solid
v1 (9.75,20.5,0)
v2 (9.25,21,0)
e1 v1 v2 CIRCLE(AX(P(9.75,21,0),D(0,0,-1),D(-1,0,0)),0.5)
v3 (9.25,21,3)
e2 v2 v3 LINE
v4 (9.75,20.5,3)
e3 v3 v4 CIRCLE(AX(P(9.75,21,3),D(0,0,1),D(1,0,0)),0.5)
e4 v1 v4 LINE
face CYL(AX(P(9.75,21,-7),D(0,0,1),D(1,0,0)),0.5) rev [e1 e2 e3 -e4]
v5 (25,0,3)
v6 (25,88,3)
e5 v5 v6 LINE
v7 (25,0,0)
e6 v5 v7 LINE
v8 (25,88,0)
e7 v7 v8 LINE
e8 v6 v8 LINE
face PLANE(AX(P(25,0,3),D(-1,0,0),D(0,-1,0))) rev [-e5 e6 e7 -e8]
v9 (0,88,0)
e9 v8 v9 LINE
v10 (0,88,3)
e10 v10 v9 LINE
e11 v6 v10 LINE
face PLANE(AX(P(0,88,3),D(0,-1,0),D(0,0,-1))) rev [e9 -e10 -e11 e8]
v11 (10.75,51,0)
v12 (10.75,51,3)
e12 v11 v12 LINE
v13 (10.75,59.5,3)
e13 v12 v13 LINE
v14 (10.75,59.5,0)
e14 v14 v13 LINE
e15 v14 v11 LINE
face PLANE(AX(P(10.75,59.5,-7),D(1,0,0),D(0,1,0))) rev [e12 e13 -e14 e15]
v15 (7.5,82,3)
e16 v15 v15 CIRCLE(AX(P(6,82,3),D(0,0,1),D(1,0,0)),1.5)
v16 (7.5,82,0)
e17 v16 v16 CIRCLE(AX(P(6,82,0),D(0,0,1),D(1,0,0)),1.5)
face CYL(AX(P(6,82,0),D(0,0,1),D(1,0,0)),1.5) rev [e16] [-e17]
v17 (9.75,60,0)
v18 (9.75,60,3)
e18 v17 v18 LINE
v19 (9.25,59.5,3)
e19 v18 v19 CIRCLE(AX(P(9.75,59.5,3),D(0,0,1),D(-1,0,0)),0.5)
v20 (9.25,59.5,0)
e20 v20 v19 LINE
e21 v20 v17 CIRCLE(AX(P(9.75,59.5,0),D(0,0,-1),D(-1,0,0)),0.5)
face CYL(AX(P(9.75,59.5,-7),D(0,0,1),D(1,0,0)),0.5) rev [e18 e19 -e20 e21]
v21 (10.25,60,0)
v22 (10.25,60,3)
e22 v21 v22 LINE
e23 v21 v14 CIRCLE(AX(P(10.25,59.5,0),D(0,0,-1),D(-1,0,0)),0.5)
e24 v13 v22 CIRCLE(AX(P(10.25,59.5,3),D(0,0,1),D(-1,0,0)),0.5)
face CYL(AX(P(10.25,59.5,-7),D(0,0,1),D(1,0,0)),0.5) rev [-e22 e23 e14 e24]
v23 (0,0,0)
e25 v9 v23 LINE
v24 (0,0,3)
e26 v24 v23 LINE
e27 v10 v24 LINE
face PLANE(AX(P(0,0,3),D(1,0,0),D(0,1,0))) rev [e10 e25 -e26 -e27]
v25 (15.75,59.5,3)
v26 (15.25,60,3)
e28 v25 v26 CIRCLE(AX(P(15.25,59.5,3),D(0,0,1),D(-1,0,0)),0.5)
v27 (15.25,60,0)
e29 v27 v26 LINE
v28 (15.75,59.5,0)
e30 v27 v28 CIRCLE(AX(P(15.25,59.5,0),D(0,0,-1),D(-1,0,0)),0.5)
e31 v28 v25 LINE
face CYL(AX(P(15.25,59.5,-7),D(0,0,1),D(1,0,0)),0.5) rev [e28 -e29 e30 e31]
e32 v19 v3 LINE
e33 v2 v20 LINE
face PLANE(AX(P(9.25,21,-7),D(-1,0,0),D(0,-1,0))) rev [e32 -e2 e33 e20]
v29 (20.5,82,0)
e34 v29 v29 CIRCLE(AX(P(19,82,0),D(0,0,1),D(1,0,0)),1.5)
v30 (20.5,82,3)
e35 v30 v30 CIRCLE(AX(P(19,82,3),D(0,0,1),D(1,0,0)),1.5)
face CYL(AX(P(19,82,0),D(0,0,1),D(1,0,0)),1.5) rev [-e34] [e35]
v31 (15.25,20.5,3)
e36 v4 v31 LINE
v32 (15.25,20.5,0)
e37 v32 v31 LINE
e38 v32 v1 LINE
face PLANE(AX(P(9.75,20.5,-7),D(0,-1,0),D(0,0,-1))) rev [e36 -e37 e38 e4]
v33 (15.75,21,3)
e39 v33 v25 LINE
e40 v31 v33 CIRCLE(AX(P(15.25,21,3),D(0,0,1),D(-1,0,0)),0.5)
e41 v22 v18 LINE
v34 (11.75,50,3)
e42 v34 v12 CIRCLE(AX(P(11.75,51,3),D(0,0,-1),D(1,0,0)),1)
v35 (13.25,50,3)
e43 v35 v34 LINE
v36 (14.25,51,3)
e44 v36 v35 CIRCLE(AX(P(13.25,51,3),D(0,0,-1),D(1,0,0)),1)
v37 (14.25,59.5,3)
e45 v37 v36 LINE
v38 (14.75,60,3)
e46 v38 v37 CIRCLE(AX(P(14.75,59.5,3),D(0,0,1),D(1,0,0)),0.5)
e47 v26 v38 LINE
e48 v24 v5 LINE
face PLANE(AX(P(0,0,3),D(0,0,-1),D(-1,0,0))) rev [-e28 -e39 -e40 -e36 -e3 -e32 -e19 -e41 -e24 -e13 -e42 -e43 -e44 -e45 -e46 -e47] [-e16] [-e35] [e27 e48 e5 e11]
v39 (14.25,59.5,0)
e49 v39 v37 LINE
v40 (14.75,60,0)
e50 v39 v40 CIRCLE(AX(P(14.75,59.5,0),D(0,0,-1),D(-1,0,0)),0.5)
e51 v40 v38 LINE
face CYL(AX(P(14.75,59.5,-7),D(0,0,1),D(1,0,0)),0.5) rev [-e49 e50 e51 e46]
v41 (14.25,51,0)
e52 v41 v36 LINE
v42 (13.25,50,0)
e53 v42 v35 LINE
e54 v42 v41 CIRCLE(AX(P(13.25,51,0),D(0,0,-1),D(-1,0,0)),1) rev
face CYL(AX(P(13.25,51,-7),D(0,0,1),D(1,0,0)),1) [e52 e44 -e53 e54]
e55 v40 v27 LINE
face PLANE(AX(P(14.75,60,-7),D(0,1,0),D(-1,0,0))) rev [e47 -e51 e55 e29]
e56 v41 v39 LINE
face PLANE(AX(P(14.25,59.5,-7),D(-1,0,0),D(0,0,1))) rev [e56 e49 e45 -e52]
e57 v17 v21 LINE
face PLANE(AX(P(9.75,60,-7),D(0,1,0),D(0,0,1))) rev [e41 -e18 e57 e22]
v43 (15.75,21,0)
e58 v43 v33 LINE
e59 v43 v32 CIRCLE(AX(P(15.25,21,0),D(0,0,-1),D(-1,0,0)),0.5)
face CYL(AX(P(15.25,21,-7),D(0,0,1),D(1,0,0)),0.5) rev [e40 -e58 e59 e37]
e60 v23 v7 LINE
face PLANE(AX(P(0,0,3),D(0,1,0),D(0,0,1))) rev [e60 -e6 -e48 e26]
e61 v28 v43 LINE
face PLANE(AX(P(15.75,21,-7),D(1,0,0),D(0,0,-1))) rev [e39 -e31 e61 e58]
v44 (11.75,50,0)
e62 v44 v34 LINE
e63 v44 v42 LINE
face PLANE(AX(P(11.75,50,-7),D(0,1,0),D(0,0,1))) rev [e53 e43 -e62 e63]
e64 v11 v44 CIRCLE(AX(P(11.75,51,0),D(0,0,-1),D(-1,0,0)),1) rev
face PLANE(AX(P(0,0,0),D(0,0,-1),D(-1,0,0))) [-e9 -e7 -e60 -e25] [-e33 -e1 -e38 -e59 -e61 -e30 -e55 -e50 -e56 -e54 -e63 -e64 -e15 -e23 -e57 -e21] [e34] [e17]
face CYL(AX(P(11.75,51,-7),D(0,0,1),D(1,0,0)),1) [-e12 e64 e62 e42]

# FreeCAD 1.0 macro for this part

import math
import FreeCAD as App
import Part
import Sketcher

V = App.Vector


def add_polygon(sketch, points):
    """Adds a closed chain of lines whose ends are joined by coincident constraints."""
    first, n = sketch.GeometryCount, len(points)
    for a, b in zip(points, points[1:] + points[:1]):
        sketch.addGeometry(Part.LineSegment(App.Vector(*a, 0), App.Vector(*b, 0)), False)
    for i in range(n):
        sketch.addConstraint(Sketcher.Constraint("Coincident", first + i, 2, first + (i + 1) % n, 1))

doc = App.newDocument("Part")
body = doc.addObject("PartDesign::Body", "Body")

sketch1 = body.newObject("Sketcher::SketchObject", "Sketch")
sketch1.AttachmentSupport = (doc.getObject("XY_Plane"), [""])
sketch1.MapMode = "FlatFace"
add_polygon(sketch1, [(0, 88), (0, 0), (25, 0), (25, 88)])
sketch1.addConstraint([
    Sketcher.Constraint("Vertical", 0),
    Sketcher.Constraint("Horizontal", 1),
    Sketcher.Constraint("Vertical", 2),
    Sketcher.Constraint("Horizontal", 3),
    Sketcher.Constraint("Coincident", 0, 2, -1, 1),
    Sketcher.Constraint("DistanceX", 1, 1, 1, 2, 25.0),
    Sketcher.Constraint("DistanceY", 0, 2, 0, 1, 88.0),
])
pad1 = body.newObject("PartDesign::Pad", "Pad")
pad1.Profile = sketch1
pad1.Length = 3

sketch2 = body.newObject("Sketcher::SketchObject", "Sketch001")
sketch2.AttachmentSupport = (doc.getObject("XY_Plane"), [""])
sketch2.MapMode = "FlatFace"
sketch2.AttachmentOffset = App.Placement(V(0, 0, 3), App.Rotation())
sketch2.addGeometry([
    Part.Circle(V(19, 82, 0), V(0, 0, 1), 1.5),
    Part.Circle(V(6, 82, 0), V(0, 0, 1), 1.5),
], False)
sketch2.addConstraint([
    Sketcher.Constraint("Equal", 0, 1),
    Sketcher.Constraint("Horizontal", 0, 3, 1, 3),
    Sketcher.Constraint("Diameter", 0, 3.0),
    Sketcher.Constraint("DistanceX", -1, 1, 0, 3, 19.0),
    Sketcher.Constraint("DistanceY", -1, 1, 0, 3, 82.0),
    Sketcher.Constraint("DistanceX", -1, 1, 1, 3, 6.0),
])
pocket1 = body.newObject("PartDesign::Pocket", "Pocket")
pocket1.Profile = sketch2
pocket1.Length = 3

sketch3 = body.newObject("Sketcher::SketchObject", "Sketch002")
sketch3.AttachmentSupport = (doc.getObject("XY_Plane"), [""])
sketch3.MapMode = "FlatFace"
sketch3.AttachmentOffset = App.Placement(V(0, 0, 3), App.Rotation())
sketch3.addGeometry([
    Part.LineSegment(V(9.75, 20.5, 0), V(15.25, 20.5, 0)),
    Part.ArcOfCircle(Part.Circle(V(15.25, 21, 0), V(0, 0, 1), 0.5), math.radians(-90), math.radians(0)),
    Part.LineSegment(V(15.75, 21, 0), V(15.75, 59.5, 0)),
    Part.ArcOfCircle(Part.Circle(V(15.25, 59.5, 0), V(0, 0, 1), 0.5), math.radians(0), math.radians(90)),
    Part.LineSegment(V(15.25, 60, 0), V(14.75, 60, 0)),
    Part.ArcOfCircle(Part.Circle(V(14.75, 59.5, 0), V(0, 0, 1), 0.5), math.radians(90), math.radians(180)),
    Part.LineSegment(V(14.25, 59.5, 0), V(14.25, 51, 0)),
    Part.ArcOfCircle(Part.Circle(V(13.25, 51, 0), V(0, 0, 1), 1), math.radians(-90), math.radians(0)),
    Part.LineSegment(V(13.25, 50, 0), V(11.75, 50, 0)),
    Part.ArcOfCircle(Part.Circle(V(11.75, 51, 0), V(0, 0, 1), 1), math.radians(-180), math.radians(-90)),
    Part.LineSegment(V(10.75, 51, 0), V(10.75, 59.5, 0)),
    Part.ArcOfCircle(Part.Circle(V(10.25, 59.5, 0), V(0, 0, 1), 0.5), math.radians(0), math.radians(90)),
    Part.LineSegment(V(10.25, 60, 0), V(9.75, 60, 0)),
    Part.ArcOfCircle(Part.Circle(V(9.75, 59.5, 0), V(0, 0, 1), 0.5), math.radians(90), math.radians(180)),
    Part.LineSegment(V(9.25, 59.5, 0), V(9.25, 21, 0)),
    Part.ArcOfCircle(Part.Circle(V(9.75, 21, 0), V(0, 0, 1), 0.5), math.radians(180), math.radians(270)),
], False)
sketch3.addConstraint([
    Sketcher.Constraint("Tangent", 0, 2, 1, 1),
    Sketcher.Constraint("Tangent", 1, 2, 2, 1),
    Sketcher.Constraint("Tangent", 2, 2, 3, 1),
    Sketcher.Constraint("Tangent", 3, 2, 4, 1),
    Sketcher.Constraint("Tangent", 4, 2, 5, 1),
    Sketcher.Constraint("Tangent", 5, 2, 6, 1),
    Sketcher.Constraint("Tangent", 6, 2, 7, 2),
    Sketcher.Constraint("Tangent", 7, 1, 8, 1),
    Sketcher.Constraint("Tangent", 8, 2, 9, 2),
    Sketcher.Constraint("Tangent", 9, 1, 10, 1),
    Sketcher.Constraint("Tangent", 10, 2, 11, 1),
    Sketcher.Constraint("Tangent", 11, 2, 12, 1),
    Sketcher.Constraint("Tangent", 12, 2, 13, 1),
    Sketcher.Constraint("Tangent", 13, 2, 14, 1),
    Sketcher.Constraint("Tangent", 14, 2, 15, 1),
    Sketcher.Constraint("Tangent", 15, 2, 0, 1),
    Sketcher.Constraint("Horizontal", 0),
    Sketcher.Constraint("Vertical", 2),
    Sketcher.Constraint("Horizontal", 4),
    Sketcher.Constraint("Vertical", 6),
    Sketcher.Constraint("Horizontal", 8),
    Sketcher.Constraint("Vertical", 10),
    Sketcher.Constraint("Horizontal", 12),
    Sketcher.Constraint("Vertical", 14),
    Sketcher.Constraint("Equal", 1, 3),
    Sketcher.Constraint("Equal", 3, 5),
    Sketcher.Constraint("Equal", 7, 9),
    Sketcher.Constraint("Equal", 5, 11),
    Sketcher.Constraint("Equal", 11, 13),
    Sketcher.Constraint("Equal", 13, 15),
    Sketcher.Constraint("Horizontal", 5, 3, 11, 3),
    Sketcher.Constraint("Equal", 4, 12),
    Sketcher.Constraint("Radius", 7, 1.0),
    Sketcher.Constraint("Radius", 1, 0.5),
    Sketcher.Constraint("DistanceX", 0, 1, 0, 2, 5.5),
    Sketcher.Constraint("DistanceX", 4, 2, 4, 1, 0.5),
    Sketcher.Constraint("DistanceY", 2, 1, 2, 2, 38.5),
    Sketcher.Constraint("DistanceY", 6, 2, 6, 1, 8.5),
    Sketcher.Constraint("DistanceY", -1, 1, 1, 3, 21.0),
    Sketcher.Constraint("DistanceX", -1, 1, 1, 3, 15.25),
])
pocket2 = body.newObject("PartDesign::Pocket", "Pocket001")
pocket2.Profile = sketch3
pocket2.Length = 10

doc.recompute()
